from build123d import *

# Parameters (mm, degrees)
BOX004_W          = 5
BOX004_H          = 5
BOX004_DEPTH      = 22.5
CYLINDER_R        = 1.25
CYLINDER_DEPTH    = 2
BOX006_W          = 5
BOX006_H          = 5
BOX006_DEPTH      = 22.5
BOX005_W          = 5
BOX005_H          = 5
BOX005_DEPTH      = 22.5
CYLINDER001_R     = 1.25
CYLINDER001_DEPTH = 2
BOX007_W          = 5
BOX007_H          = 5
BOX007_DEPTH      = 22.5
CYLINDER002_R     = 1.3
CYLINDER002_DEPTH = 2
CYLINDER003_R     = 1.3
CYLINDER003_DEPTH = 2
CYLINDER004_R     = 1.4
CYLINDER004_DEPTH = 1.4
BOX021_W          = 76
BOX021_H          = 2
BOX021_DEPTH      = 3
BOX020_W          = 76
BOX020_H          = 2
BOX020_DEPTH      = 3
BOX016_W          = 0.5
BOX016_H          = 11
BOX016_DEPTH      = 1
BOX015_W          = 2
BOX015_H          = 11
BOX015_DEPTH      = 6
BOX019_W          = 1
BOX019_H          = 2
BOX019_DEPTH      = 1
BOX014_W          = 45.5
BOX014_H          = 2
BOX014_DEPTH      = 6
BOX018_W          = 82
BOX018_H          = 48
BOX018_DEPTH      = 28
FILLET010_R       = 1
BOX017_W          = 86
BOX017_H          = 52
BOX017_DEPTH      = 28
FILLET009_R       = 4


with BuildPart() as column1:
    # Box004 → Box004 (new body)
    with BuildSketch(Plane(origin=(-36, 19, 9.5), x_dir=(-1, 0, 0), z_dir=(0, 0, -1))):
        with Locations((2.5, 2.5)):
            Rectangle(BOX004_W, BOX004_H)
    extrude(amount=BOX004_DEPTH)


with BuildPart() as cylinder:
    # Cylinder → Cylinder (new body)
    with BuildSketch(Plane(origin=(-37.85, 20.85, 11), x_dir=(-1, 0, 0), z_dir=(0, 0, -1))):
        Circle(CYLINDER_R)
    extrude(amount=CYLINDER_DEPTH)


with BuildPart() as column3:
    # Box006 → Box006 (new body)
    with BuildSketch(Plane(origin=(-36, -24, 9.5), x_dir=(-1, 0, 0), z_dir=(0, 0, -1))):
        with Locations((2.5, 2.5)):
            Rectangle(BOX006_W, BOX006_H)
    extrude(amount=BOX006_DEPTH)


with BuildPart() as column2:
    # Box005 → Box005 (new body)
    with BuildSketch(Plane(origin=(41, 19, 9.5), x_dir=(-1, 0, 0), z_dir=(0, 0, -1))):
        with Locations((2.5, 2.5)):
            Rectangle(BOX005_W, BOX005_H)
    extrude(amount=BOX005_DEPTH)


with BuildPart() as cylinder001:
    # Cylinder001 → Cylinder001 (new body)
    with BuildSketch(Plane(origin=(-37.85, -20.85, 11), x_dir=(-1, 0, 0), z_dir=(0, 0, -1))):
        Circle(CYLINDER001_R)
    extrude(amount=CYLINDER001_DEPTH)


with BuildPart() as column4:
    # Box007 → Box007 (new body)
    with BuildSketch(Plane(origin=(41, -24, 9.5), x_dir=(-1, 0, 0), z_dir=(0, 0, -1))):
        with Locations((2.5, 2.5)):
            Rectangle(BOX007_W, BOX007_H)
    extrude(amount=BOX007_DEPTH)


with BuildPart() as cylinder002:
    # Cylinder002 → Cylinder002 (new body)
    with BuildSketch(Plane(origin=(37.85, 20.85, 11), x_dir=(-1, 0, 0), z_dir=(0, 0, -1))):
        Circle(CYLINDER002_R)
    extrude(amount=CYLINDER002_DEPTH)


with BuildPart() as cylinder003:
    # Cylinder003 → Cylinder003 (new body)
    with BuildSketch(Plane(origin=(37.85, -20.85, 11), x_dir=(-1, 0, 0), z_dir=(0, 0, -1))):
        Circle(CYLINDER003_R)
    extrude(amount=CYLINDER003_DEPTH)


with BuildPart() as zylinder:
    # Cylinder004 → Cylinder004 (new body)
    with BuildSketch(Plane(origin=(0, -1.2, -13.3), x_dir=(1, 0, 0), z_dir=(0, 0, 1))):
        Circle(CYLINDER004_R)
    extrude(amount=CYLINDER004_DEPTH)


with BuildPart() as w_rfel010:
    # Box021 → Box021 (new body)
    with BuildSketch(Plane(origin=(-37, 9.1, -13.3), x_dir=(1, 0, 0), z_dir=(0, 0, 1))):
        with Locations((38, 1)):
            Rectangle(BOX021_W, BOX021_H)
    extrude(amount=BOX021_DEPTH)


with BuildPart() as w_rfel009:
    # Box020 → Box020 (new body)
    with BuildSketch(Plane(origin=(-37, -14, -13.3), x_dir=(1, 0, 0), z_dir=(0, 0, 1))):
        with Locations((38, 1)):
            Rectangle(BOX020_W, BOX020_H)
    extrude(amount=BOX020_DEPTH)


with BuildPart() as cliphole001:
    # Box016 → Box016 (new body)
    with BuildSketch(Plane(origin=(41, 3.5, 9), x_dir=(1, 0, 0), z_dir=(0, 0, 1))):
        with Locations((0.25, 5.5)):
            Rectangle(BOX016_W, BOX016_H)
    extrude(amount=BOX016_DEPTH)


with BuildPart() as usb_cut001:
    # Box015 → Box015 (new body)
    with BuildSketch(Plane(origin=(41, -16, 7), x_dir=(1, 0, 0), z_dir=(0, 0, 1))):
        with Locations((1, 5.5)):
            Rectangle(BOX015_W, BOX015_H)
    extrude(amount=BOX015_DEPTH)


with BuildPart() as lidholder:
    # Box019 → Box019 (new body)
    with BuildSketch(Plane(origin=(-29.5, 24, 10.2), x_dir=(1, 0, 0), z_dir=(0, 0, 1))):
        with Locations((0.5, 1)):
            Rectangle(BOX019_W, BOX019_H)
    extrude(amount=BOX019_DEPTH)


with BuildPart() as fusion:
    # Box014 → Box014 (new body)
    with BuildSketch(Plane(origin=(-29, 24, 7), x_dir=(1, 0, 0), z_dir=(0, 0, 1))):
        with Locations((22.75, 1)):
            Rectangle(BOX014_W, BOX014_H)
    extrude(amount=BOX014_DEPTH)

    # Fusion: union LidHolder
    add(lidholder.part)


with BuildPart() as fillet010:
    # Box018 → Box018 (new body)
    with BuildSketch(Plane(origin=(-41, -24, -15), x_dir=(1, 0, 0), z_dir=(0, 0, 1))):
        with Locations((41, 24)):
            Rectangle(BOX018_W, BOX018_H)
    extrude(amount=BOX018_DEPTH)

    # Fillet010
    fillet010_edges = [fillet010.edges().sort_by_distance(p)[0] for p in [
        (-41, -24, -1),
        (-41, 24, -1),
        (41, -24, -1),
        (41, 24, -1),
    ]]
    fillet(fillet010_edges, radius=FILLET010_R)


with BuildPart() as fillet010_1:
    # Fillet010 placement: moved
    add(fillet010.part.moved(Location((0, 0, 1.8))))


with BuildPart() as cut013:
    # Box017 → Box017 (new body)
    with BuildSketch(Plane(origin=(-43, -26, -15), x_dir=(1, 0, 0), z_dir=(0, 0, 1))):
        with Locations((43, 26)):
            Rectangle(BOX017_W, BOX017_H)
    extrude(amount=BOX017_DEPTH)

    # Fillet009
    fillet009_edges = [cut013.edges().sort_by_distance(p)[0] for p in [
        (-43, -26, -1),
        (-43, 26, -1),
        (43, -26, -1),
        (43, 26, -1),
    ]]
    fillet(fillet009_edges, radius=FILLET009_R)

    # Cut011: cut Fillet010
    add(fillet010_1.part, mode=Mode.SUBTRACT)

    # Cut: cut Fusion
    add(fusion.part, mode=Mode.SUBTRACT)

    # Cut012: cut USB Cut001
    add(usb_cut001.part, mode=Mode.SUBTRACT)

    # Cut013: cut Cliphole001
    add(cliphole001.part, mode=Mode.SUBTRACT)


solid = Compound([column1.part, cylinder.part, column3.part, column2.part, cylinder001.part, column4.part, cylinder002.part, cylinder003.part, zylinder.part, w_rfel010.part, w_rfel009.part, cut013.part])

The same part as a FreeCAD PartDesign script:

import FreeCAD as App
import Part
import Sketcher
from FreeCAD import Vector


def edges_at(feature, points):
    """Names of the edges that pass closest to the given points."""
    edges = feature.Shape.Edges
    near = lambda p: min(range(len(edges)), key=lambda i: edges[i].distToShape(Part.Vertex(*p))[0])
    return sorted({f"Edge{near(p) + 1}" for p in points})


def add_polygon(sketch, points):
    """Adds a closed chain of lines whose ends are joined by coincident constraints."""
    first, n = sketch.GeometryCount, len(points)
    for a, b in zip(points, points[1:] + points[:1]):
        sketch.addGeometry(Part.LineSegment(App.Vector(*a, 0), App.Vector(*b, 0)), False)
    for i in range(n):
        sketch.addConstraint(Sketcher.Constraint("Coincident", first + i, 2, first + (i + 1) % n, 1))

doc = App.newDocument("Part")
body = doc.addObject("PartDesign::Body", "Body")

sketch1 = doc.addObject("Sketcher::SketchObject", "Sketch")
body.addObject(sketch1)
sketch1.AttachmentSupport = (doc.XY_Plane, [""])
sketch1.MapMode = "FlatFace"
sketch1.AttachmentOffset = App.Placement(Vector(0, 0, 9.5), App.Rotation())
add_polygon(sketch1, [(-36, 24), (-36, 19), (-41, 19), (-41, 24)])
sketch1.addConstraint([
    Sketcher.Constraint("Vertical", 0),
    Sketcher.Constraint("Horizontal", 1),
    Sketcher.Constraint("Vertical", 2),
    Sketcher.Constraint("Horizontal", 3),
    Sketcher.Constraint("Equal", 3, 0),
    Sketcher.Constraint("DistanceX", 1, 2, 1, 1, 5.0),
    Sketcher.Constraint("DistanceX", 0, 2, -1, 1, 36.0),
    Sketcher.Constraint("DistanceY", -1, 1, 0, 2, 19.0),
])
pad1 = doc.addObject("PartDesign::Pad", "Pad")
body.addObject(pad1)
pad1.Profile = sketch1
pad1.Length = 22.5
pad1.Reversed = True
body2 = doc.addObject("PartDesign::Body", "Body001")

sketch2 = doc.addObject("Sketcher::SketchObject", "Sketch001")
body2.addObject(sketch2)
sketch2.AttachmentSupport = (doc.getObject("XY_Plane001"), [""])
sketch2.MapMode = "FlatFace"
sketch2.AttachmentOffset = App.Placement(Vector(0, 0, 11), App.Rotation())
sketch2.addGeometry(Part.Circle(Vector(-37.85, 20.85, 0), Vector(0, 0, 1), 1.25), False)
sketch2.addConstraint([
    Sketcher.Constraint("Diameter", 0, 2.5),
    Sketcher.Constraint("DistanceX", 0, 3, -1, 1, 37.85),
    Sketcher.Constraint("DistanceY", -1, 1, 0, 3, 20.85),
])
pad2 = doc.addObject("PartDesign::Pad", "Pad001")
body2.addObject(pad2)
pad2.Profile = sketch2
pad2.Length = 2
pad2.Reversed = True
body3 = doc.addObject("PartDesign::Body", "Body002")

sketch3 = doc.addObject("Sketcher::SketchObject", "Sketch002")
body3.addObject(sketch3)
sketch3.AttachmentSupport = (doc.getObject("XY_Plane002"), [""])
sketch3.MapMode = "FlatFace"
sketch3.AttachmentOffset = App.Placement(Vector(0, 0, 9.5), App.Rotation())
add_polygon(sketch3, [(-36, -19), (-36, -24), (-41, -24), (-41, -19)])
sketch3.addConstraint([
    Sketcher.Constraint("Vertical", 0),
    Sketcher.Constraint("Horizontal", 1),
    Sketcher.Constraint("Vertical", 2),
    Sketcher.Constraint("Horizontal", 3),
    Sketcher.Constraint("Equal", 3, 0),
    Sketcher.Constraint("DistanceX", 1, 2, 1, 1, 5.0),
    Sketcher.Constraint("DistanceX", 0, 2, -1, 1, 36.0),
    Sketcher.Constraint("DistanceY", 0, 2, -1, 1, 24.0),
])
pad3 = doc.addObject("PartDesign::Pad", "Pad002")
body3.addObject(pad3)
pad3.Profile = sketch3
pad3.Length = 22.5
pad3.Reversed = True
body4 = doc.addObject("PartDesign::Body", "Body003")

sketch4 = doc.addObject("Sketcher::SketchObject", "Sketch003")
body4.addObject(sketch4)
sketch4.AttachmentSupport = (doc.getObject("XY_Plane003"), [""])
sketch4.MapMode = "FlatFace"
sketch4.AttachmentOffset = App.Placement(Vector(0, 0, 9.5), App.Rotation())
add_polygon(sketch4, [(41, 24), (41, 19), (36, 19), (36, 24)])
sketch4.addConstraint([
    Sketcher.Constraint("Vertical", 0),
    Sketcher.Constraint("Horizontal", 1),
    Sketcher.Constraint("Vertical", 2),
    Sketcher.Constraint("Horizontal", 3),
    Sketcher.Constraint("Equal", 3, 0),
    Sketcher.Constraint("DistanceX", 1, 2, 1, 1, 5.0),
    Sketcher.Constraint("DistanceX", -1, 1, 0, 2, 41.0),
    Sketcher.Constraint("DistanceY", -1, 1, 0, 2, 19.0),
])
pad4 = doc.addObject("PartDesign::Pad", "Pad003")
body4.addObject(pad4)
pad4.Profile = sketch4
pad4.Length = 22.5
pad4.Reversed = True
body5 = doc.addObject("PartDesign::Body", "Body004")

sketch5 = doc.addObject("Sketcher::SketchObject", "Sketch004")
body5.addObject(sketch5)
sketch5.AttachmentSupport = (doc.getObject("XY_Plane004"), [""])
sketch5.MapMode = "FlatFace"
sketch5.AttachmentOffset = App.Placement(Vector(0, 0, 11), App.Rotation())
sketch5.addGeometry(Part.Circle(Vector(-37.85, -20.85, 0), Vector(0, 0, 1), 1.25), False)
sketch5.addConstraint([
    Sketcher.Constraint("Diameter", 0, 2.5),
    Sketcher.Constraint("DistanceX", 0, 3, -1, 1, 37.85),
    Sketcher.Constraint("DistanceY", 0, 3, -1, 1, 20.85),
])
pad5 = doc.addObject("PartDesign::Pad", "Pad004")
body5.addObject(pad5)
pad5.Profile = sketch5
pad5.Length = 2
pad5.Reversed = True
body6 = doc.addObject("PartDesign::Body", "Body005")

sketch6 = doc.addObject("Sketcher::SketchObject", "Sketch005")
body6.addObject(sketch6)
sketch6.AttachmentSupport = (doc.getObject("XY_Plane005"), [""])
sketch6.MapMode = "FlatFace"
sketch6.AttachmentOffset = App.Placement(Vector(0, 0, 9.5), App.Rotation())
add_polygon(sketch6, [(41, -19), (41, -24), (36, -24), (36, -19)])
sketch6.addConstraint([
    Sketcher.Constraint("Vertical", 0),
    Sketcher.Constraint("Horizontal", 1),
    Sketcher.Constraint("Vertical", 2),
    Sketcher.Constraint("Horizontal", 3),
    Sketcher.Constraint("Equal", 3, 0),
    Sketcher.Constraint("DistanceX", 1, 2, 1, 1, 5.0),
    Sketcher.Constraint("DistanceX", -1, 1, 0, 2, 41.0),
    Sketcher.Constraint("DistanceY", 0, 2, -1, 1, 24.0),
])
pad6 = doc.addObject("PartDesign::Pad", "Pad005")
body6.addObject(pad6)
pad6.Profile = sketch6
pad6.Length = 22.5
pad6.Reversed = True
body7 = doc.addObject("PartDesign::Body", "Body006")

sketch7 = doc.addObject("Sketcher::SketchObject", "Sketch006")
body7.addObject(sketch7)
sketch7.AttachmentSupport = (doc.getObject("XY_Plane006"), [""])
sketch7.MapMode = "FlatFace"
sketch7.AttachmentOffset = App.Placement(Vector(0, 0, 11), App.Rotation())
sketch7.addGeometry(Part.Circle(Vector(37.85, 20.85, 0), Vector(0, 0, 1), 1.3), False)
sketch7.addConstraint([
    Sketcher.Constraint("Diameter", 0, 2.6),
    Sketcher.Constraint("DistanceX", -1, 1, 0, 3, 37.85),
    Sketcher.Constraint("DistanceY", -1, 1, 0, 3, 20.85),
])
pad7 = doc.addObject("PartDesign::Pad", "Pad006")
body7.addObject(pad7)
pad7.Profile = sketch7
pad7.Length = 2
pad7.Reversed = True
body8 = doc.addObject("PartDesign::Body", "Body007")

sketch8 = doc.addObject("Sketcher::SketchObject", "Sketch007")
body8.addObject(sketch8)
sketch8.AttachmentSupport = (doc.getObject("XY_Plane007"), [""])
sketch8.MapMode = "FlatFace"
sketch8.AttachmentOffset = App.Placement(Vector(0, 0, 11), App.Rotation())
sketch8.addGeometry(Part.Circle(Vector(37.85, -20.85, 0), Vector(0, 0, 1), 1.3), False)
sketch8.addConstraint([
    Sketcher.Constraint("Diameter", 0, 2.6),
    Sketcher.Constraint("DistanceX", -1, 1, 0, 3, 37.85),
    Sketcher.Constraint("DistanceY", 0, 3, -1, 1, 20.85),
])
pad8 = doc.addObject("PartDesign::Pad", "Pad007")
body8.addObject(pad8)
pad8.Profile = sketch8
pad8.Length = 2
pad8.Reversed = True
body9 = doc.addObject("PartDesign::Body", "Body008")

sketch9 = doc.addObject("Sketcher::SketchObject", "Sketch008")
body9.addObject(sketch9)
sketch9.AttachmentSupport = (doc.getObject("XY_Plane008"), [""])
sketch9.MapMode = "FlatFace"
sketch9.AttachmentOffset = App.Placement(Vector(0, 0, -13.3), App.Rotation())
sketch9.addGeometry(Part.Circle(Vector(0, -1.2, 0), Vector(0, 0, 1), 1.4), False)
sketch9.addConstraint([
    Sketcher.Constraint("PointOnObject", 0, 3, -2),
    Sketcher.Constraint("Diameter", 0, 2.8),
    Sketcher.Constraint("DistanceY", 0, 3, -1, 1, 1.2),
])
pad9 = doc.addObject("PartDesign::Pad", "Pad008")
body9.addObject(pad9)
pad9.Profile = sketch9
pad9.Length = 1.4
body10 = doc.addObject("PartDesign::Body", "Body009")

sketch10 = doc.addObject("Sketcher::SketchObject", "Sketch009")
body10.addObject(sketch10)
sketch10.AttachmentSupport = (doc.getObject("XY_Plane009"), [""])
sketch10.MapMode = "FlatFace"
sketch10.AttachmentOffset = App.Placement(Vector(0, 0, -13.3), App.Rotation())
add_polygon(sketch10, [(-37, 11.1), (-37, 9.1), (39, 9.1), (39, 11.1)])
sketch10.addConstraint([
    Sketcher.Constraint("Vertical", 0),
    Sketcher.Constraint("Horizontal", 1),
    Sketcher.Constraint("Vertical", 2),
    Sketcher.Constraint("Horizontal", 3),
    Sketcher.Constraint("DistanceX", 1, 1, 1, 2, 76.0),
    Sketcher.Constraint("DistanceY", 0, 2, 0, 1, 2.0),
    Sketcher.Constraint("DistanceX", 0, 2, -1, 1, 37.0),
    Sketcher.Constraint("DistanceY", -1, 1, 0, 2, 9.1),
])
pad10 = doc.addObject("PartDesign::Pad", "Pad009")
body10.addObject(pad10)
pad10.Profile = sketch10
pad10.Length = 3
body11 = doc.addObject("PartDesign::Body", "Body010")

sketch11 = doc.addObject("Sketcher::SketchObject", "Sketch010")
body11.addObject(sketch11)
sketch11.AttachmentSupport = (doc.getObject("XY_Plane010"), [""])
sketch11.MapMode = "FlatFace"
sketch11.AttachmentOffset = App.Placement(Vector(0, 0, -13.3), App.Rotation())
add_polygon(sketch11, [(-37, -12), (-37, -14), (39, -14), (39, -12)])
sketch11.addConstraint([
    Sketcher.Constraint("Vertical", 0),
    Sketcher.Constraint("Horizontal", 1),
    Sketcher.Constraint("Vertical", 2),
    Sketcher.Constraint("Horizontal", 3),
    Sketcher.Constraint("DistanceX", 1, 1, 1, 2, 76.0),
    Sketcher.Constraint("DistanceY", 0, 2, 0, 1, 2.0),
    Sketcher.Constraint("DistanceX", 0, 2, -1, 1, 37.0),
    Sketcher.Constraint("DistanceY", 0, 2, -1, 1, 14.0),
])
pad11 = doc.addObject("PartDesign::Pad", "Pad010")
body11.addObject(pad11)
pad11.Profile = sketch11
pad11.Length = 3
body12 = doc.addObject("PartDesign::Body", "Body011")

sketch12 = doc.addObject("Sketcher::SketchObject", "Sketch011")
body12.addObject(sketch12)
sketch12.AttachmentSupport = (doc.getObject("XY_Plane011"), [""])
sketch12.MapMode = "FlatFace"
sketch12.AttachmentOffset = App.Placement(Vector(0, 0, 9), App.Rotation())
add_polygon(sketch12, [(41, 14.5), (41, 3.5), (41.5, 3.5), (41.5, 14.5)])
sketch12.addConstraint([
    Sketcher.Constraint("Vertical", 0),
    Sketcher.Constraint("Horizontal", 1),
    Sketcher.Constraint("Vertical", 2),
    Sketcher.Constraint("Horizontal", 3),
    Sketcher.Constraint("DistanceY", 0, 2, 0, 1, 11.0),
    Sketcher.Constraint("DistanceX", 1, 1, 1, 2, 0.5),
    Sketcher.Constraint("DistanceX", -1, 1, 0, 2, 41.0),
    Sketcher.Constraint("DistanceY", -1, 1, 0, 2, 3.5),
])
pad12 = doc.addObject("PartDesign::Pad", "Pad011")
body12.addObject(pad12)
pad12.Profile = sketch12
pad12.Length = 1
body13 = doc.addObject("PartDesign::Body", "Body012")

sketch13 = doc.addObject("Sketcher::SketchObject", "Sketch012")
body13.addObject(sketch13)
sketch13.AttachmentSupport = (doc.getObject("XY_Plane012"), [""])
sketch13.MapMode = "FlatFace"
sketch13.AttachmentOffset = App.Placement(Vector(0, 0, 7), App.Rotation())
add_polygon(sketch13, [(41, -5), (41, -16), (43, -16), (43, -5)])
sketch13.addConstraint([
    Sketcher.Constraint("Vertical", 0),
    Sketcher.Constraint("Horizontal", 1),
    Sketcher.Constraint("Vertical", 2),
    Sketcher.Constraint("Horizontal", 3),
    Sketcher.Constraint("DistanceX", 1, 1, 1, 2, 2.0),
    Sketcher.Constraint("DistanceY", 0, 2, 0, 1, 11.0),
    Sketcher.Constraint("DistanceX", -1, 1, 0, 2, 41.0),
    Sketcher.Constraint("DistanceY", 0, 2, -1, 1, 16.0),
])
pad13 = doc.addObject("PartDesign::Pad", "Pad012")
body13.addObject(pad13)
pad13.Profile = sketch13
pad13.Length = 6
body14 = doc.addObject("PartDesign::Body", "Body013")

sketch14 = doc.addObject("Sketcher::SketchObject", "Sketch013")
body14.addObject(sketch14)
sketch14.AttachmentSupport = (doc.getObject("XY_Plane013"), [""])
sketch14.MapMode = "FlatFace"
sketch14.AttachmentOffset = App.Placement(Vector(0, 0, 10.2), App.Rotation())
add_polygon(sketch14, [(-29.5, 26), (-29.5, 24), (-28.5, 24), (-28.5, 26)])
sketch14.addConstraint([
    Sketcher.Constraint("Vertical", 0),
    Sketcher.Constraint("Horizontal", 1),
    Sketcher.Constraint("Vertical", 2),
    Sketcher.Constraint("Horizontal", 3),
    Sketcher.Constraint("DistanceX", 1, 1, 1, 2, 1.0),
    Sketcher.Constraint("DistanceY", 0, 2, 0, 1, 2.0),
    Sketcher.Constraint("DistanceY", -1, 1, 0, 2, 24.0),
    Sketcher.Constraint("DistanceX", 0, 2, -1, 1, 29.5),
])
pad14 = doc.addObject("PartDesign::Pad", "Pad013")
body14.addObject(pad14)
pad14.Profile = sketch14
pad14.Length = 1
body15 = doc.addObject("PartDesign::Body", "Body014")

sketch15 = doc.addObject("Sketcher::SketchObject", "Sketch014")
body15.addObject(sketch15)
sketch15.AttachmentSupport = (doc.getObject("XY_Plane014"), [""])
sketch15.MapMode = "FlatFace"
sketch15.AttachmentOffset = App.Placement(Vector(0, 0, 7), App.Rotation())
add_polygon(sketch15, [(-29, 26), (-29, 24), (16.5, 24), (16.5, 26)])
sketch15.addConstraint([
    Sketcher.Constraint("Vertical", 0),
    Sketcher.Constraint("Horizontal", 1),
    Sketcher.Constraint("Vertical", 2),
    Sketcher.Constraint("Horizontal", 3),
    Sketcher.Constraint("DistanceY", 0, 2, 0, 1, 2.0),
    Sketcher.Constraint("DistanceX", 1, 1, 1, 2, 45.5),
    Sketcher.Constraint("DistanceX", 0, 2, -1, 1, 29.0),
    Sketcher.Constraint("DistanceY", -1, 1, 0, 2, 24.0),
])
pad15 = doc.addObject("PartDesign::Pad", "Pad014")
body15.addObject(pad15)
pad15.Profile = sketch15
pad15.Length = 6
doc.recompute()

boolean = doc.addObject("PartDesign::Boolean", "Boolean")
body15.addObject(boolean)
boolean.Type = "Fuse"
boolean.addObjects([body14])
body16 = doc.addObject("PartDesign::Body", "Body015")

sketch16 = doc.addObject("Sketcher::SketchObject", "Sketch015")
body16.addObject(sketch16)
sketch16.AttachmentSupport = (doc.getObject("XY_Plane015"), [""])
sketch16.MapMode = "FlatFace"
sketch16.AttachmentOffset = App.Placement(Vector(0, 0, -15), App.Rotation())
add_polygon(sketch16, [(-41, 24), (-41, -24), (41, -24), (41, 24)])
sketch16.addConstraint([
    Sketcher.Constraint("Vertical", 0),
    Sketcher.Constraint("Horizontal", 1),
    Sketcher.Constraint("Vertical", 2),
    Sketcher.Constraint("Horizontal", 3),
    Sketcher.Constraint("Symmetric", 0, 2, 2, 2, -1, 1),
    Sketcher.Constraint("DistanceX", 1, 1, 1, 2, 82.0),
    Sketcher.Constraint("DistanceY", 0, 2, 0, 1, 48.0),
])
pad16 = doc.addObject("PartDesign::Pad", "Pad015")
body16.addObject(pad16)
pad16.Profile = sketch16
pad16.Length = 28
doc.recompute()

fillet = doc.addObject("PartDesign::Fillet", "Fillet")
body16.addObject(fillet)
fillet.Base = (pad16, edges_at(pad16, [
    (-41, -24, -1),
    (-41, 24, -1),
    (41, -24, -1),
    (41, 24, -1),
]))
fillet.Radius = 1
body17 = doc.addObject("PartDesign::Body", "Body016")
doc.recompute()

body16.Placement = App.Placement(Vector(0, 0, 1.8), App.Rotation(Vector(0, 0, 1), 0))
boolean2 = doc.addObject("PartDesign::Boolean", "Boolean001")
body17.addObject(boolean2)
boolean2.Type = "Fuse"
boolean2.addObjects([body16])
body18 = doc.addObject("PartDesign::Body", "Body017")

sketch17 = doc.addObject("Sketcher::SketchObject", "Sketch016")
body18.addObject(sketch17)
sketch17.AttachmentSupport = (doc.getObject("XY_Plane017"), [""])
sketch17.MapMode = "FlatFace"
sketch17.AttachmentOffset = App.Placement(Vector(0, 0, -15), App.Rotation())
add_polygon(sketch17, [(-43, 26), (-43, -26), (43, -26), (43, 26)])
sketch17.addConstraint([
    Sketcher.Constraint("Vertical", 0),
    Sketcher.Constraint("Horizontal", 1),
    Sketcher.Constraint("Vertical", 2),
    Sketcher.Constraint("Horizontal", 3),
    Sketcher.Constraint("Symmetric", 0, 2, 2, 2, -1, 1),
    Sketcher.Constraint("DistanceX", 1, 1, 1, 2, 86.0),
    Sketcher.Constraint("DistanceY", 0, 2, 0, 1, 52.0),
])
pad17 = doc.addObject("PartDesign::Pad", "Pad016")
body18.addObject(pad17)
pad17.Profile = sketch17
pad17.Length = 28
doc.recompute()

fillet2 = doc.addObject("PartDesign::Fillet", "Fillet001")
body18.addObject(fillet2)
fillet2.Base = (pad17, edges_at(pad17, [
    (-43, -26, -1),
    (-43, 26, -1),
    (43, -26, -1),
    (43, 26, -1),
]))
fillet2.Radius = 4
doc.recompute()

boolean3 = doc.addObject("PartDesign::Boolean", "Boolean002")
body18.addObject(boolean3)
boolean3.Type = "Cut"
boolean3.addObjects([body17])
doc.recompute()

boolean4 = doc.addObject("PartDesign::Boolean", "Boolean003")
body18.addObject(boolean4)
boolean4.Type = "Cut"
boolean4.addObjects([body15])
doc.recompute()

boolean5 = doc.addObject("PartDesign::Boolean", "Boolean004")
body18.addObject(boolean5)
boolean5.Type = "Cut"
boolean5.addObjects([body13])
doc.recompute()

boolean6 = doc.addObject("PartDesign::Boolean", "Boolean005")
body18.addObject(boolean6)
boolean6.Type = "Cut"
boolean6.addObjects([body12])

doc.recompute()
